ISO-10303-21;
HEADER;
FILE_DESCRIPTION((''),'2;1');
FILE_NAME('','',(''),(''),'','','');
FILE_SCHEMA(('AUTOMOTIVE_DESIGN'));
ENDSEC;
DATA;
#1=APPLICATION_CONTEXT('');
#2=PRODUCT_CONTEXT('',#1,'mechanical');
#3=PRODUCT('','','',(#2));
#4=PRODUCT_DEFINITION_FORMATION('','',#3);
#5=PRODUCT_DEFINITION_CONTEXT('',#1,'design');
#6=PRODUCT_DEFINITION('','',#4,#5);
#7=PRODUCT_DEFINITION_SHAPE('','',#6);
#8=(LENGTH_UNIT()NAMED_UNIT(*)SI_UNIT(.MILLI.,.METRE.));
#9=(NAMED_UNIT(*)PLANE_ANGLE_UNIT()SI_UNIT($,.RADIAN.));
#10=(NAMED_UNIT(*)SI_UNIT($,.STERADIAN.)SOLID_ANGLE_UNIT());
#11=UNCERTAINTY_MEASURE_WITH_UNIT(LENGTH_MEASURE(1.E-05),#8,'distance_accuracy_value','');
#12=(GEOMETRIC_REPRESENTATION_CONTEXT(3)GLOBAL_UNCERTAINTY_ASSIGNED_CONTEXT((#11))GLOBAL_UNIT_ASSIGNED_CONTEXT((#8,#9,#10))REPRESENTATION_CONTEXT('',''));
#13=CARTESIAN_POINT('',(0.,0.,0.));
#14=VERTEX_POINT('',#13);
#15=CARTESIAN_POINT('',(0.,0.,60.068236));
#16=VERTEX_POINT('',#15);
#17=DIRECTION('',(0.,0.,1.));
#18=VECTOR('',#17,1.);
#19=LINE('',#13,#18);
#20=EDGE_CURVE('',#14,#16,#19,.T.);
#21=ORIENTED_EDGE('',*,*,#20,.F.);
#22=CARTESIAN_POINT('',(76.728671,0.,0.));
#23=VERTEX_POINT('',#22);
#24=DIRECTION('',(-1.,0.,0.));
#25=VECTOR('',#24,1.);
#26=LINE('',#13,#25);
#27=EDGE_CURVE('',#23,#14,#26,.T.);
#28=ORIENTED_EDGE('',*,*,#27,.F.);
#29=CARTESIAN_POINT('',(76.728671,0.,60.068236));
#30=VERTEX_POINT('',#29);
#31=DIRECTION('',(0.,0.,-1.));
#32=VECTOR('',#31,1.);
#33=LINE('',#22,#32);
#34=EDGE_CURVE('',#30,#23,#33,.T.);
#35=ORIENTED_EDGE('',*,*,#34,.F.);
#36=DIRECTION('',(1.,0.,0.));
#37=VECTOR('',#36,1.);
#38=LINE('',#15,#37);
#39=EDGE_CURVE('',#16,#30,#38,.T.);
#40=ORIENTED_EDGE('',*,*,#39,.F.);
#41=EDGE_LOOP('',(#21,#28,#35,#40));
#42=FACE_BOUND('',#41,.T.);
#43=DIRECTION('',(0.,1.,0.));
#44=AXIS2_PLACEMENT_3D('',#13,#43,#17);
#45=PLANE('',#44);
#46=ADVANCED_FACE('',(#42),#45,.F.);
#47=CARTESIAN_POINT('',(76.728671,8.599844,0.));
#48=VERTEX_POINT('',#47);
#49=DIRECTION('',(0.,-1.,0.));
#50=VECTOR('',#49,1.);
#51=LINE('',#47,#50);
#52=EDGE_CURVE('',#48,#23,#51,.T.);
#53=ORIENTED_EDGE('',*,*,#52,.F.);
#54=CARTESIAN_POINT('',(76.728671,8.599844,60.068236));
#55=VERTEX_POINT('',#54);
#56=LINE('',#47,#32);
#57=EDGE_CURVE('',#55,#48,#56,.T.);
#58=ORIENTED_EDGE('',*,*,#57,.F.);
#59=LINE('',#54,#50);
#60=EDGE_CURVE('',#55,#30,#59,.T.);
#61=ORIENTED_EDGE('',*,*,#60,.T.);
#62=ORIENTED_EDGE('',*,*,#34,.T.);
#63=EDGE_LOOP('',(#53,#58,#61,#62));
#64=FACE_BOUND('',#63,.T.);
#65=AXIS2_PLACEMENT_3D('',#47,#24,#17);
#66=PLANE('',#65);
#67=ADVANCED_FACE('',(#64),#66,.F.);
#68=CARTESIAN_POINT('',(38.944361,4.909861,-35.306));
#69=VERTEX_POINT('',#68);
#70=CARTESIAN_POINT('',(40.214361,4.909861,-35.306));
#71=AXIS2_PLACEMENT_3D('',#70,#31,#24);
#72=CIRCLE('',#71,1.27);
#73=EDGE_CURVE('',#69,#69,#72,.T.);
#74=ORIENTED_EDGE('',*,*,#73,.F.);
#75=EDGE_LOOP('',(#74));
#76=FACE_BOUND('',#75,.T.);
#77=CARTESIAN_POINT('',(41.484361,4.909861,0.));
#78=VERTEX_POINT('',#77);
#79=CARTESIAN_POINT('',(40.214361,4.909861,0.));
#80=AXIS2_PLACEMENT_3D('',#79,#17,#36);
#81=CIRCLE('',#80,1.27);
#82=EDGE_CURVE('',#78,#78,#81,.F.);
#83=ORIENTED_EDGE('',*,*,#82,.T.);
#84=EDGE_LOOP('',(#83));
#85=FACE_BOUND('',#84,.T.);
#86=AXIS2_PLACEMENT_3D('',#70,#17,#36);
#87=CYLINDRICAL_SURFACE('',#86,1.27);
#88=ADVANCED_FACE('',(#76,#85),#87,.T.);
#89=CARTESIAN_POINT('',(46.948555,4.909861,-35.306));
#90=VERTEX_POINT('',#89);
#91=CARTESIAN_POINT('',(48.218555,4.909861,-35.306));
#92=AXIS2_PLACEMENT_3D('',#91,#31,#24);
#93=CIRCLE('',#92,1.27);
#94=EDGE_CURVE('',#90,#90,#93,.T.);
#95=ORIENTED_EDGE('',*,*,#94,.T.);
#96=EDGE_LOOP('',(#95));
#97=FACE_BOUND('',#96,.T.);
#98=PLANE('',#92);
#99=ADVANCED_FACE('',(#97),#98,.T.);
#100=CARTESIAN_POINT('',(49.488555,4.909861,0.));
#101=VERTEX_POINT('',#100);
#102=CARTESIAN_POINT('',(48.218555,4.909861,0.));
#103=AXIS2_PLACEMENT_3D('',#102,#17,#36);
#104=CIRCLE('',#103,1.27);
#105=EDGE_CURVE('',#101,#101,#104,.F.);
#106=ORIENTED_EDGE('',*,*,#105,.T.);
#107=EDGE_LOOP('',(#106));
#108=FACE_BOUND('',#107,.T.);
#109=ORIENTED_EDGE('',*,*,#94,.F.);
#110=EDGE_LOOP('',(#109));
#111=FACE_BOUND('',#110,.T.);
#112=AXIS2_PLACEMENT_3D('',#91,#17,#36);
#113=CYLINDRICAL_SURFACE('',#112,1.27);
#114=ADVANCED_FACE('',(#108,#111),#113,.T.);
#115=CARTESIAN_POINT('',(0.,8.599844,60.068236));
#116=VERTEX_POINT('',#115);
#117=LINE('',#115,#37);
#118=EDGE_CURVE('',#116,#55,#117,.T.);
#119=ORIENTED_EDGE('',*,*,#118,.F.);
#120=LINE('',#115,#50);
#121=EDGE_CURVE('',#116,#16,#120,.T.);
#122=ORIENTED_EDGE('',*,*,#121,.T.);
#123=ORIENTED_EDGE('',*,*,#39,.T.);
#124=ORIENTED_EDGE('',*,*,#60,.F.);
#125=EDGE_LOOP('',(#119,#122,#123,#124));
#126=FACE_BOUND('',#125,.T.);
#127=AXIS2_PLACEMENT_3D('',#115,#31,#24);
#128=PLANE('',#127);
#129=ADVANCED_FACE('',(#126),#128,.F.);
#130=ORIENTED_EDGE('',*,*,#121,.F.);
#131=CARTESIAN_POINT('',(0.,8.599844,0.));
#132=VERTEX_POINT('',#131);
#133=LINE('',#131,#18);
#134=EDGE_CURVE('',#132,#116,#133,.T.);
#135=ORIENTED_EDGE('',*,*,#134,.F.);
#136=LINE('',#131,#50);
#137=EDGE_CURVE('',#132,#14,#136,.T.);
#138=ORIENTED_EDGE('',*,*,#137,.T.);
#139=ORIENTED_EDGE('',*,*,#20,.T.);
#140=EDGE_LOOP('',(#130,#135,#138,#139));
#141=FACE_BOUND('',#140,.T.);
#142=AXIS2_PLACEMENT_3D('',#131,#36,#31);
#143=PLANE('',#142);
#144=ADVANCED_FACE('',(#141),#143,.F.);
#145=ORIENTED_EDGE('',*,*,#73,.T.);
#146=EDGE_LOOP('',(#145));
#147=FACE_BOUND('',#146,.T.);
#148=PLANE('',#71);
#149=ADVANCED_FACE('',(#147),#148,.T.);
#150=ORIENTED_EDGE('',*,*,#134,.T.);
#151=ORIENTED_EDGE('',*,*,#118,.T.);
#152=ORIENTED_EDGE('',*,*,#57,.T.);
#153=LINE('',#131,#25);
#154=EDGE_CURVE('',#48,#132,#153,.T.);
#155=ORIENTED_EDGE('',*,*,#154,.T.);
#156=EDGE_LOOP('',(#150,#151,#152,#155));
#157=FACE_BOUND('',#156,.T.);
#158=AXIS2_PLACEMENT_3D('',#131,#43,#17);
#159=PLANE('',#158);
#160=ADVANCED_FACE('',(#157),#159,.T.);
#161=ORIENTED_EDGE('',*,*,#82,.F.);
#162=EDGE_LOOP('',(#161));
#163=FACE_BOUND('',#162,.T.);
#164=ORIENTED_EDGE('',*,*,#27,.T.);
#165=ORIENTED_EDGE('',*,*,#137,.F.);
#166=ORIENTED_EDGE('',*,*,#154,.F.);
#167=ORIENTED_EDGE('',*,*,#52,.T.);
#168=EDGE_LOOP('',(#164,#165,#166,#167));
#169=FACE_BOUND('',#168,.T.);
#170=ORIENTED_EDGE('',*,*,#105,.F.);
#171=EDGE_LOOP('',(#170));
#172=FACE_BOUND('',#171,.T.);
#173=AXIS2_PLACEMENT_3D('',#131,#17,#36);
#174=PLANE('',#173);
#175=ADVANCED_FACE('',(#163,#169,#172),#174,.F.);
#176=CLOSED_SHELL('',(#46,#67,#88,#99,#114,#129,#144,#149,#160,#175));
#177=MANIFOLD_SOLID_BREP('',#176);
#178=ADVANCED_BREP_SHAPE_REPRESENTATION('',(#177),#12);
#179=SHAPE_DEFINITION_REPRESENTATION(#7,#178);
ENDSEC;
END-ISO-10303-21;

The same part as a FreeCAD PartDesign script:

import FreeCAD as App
import Part
import Sketcher
Q = App.Units.Quantity


def add_polygon(sketch, points):
    """Adds a closed chain of lines whose ends are joined by coincident constraints."""
    first, n = sketch.GeometryCount, len(points)
    for a, b in zip(points, points[1:] + points[:1]):
        sketch.addGeometry(Part.LineSegment(App.Vector(*a, 0), App.Vector(*b, 0)), False)
    for i in range(n):
        sketch.addConstraint(Sketcher.Constraint("Coincident", first + i, 2, first + (i + 1) % n, 1))

doc = App.newDocument("Part")
body = doc.addObject("PartDesign::Body", "Body")

sketch1 = body.newObject("Sketcher::SketchObject", "Sketch")
sketch1.AttachmentSupport = (doc.getObject("XZ_Plane"), [""])
sketch1.MapMode = "FlatFace"
add_polygon(sketch1, [(0, 0), (0, 60.068236), (76.728671, 60.068236), (76.728671, 0)])
sketch1.addConstraint([
    Sketcher.Constraint("Vertical", 0),
    Sketcher.Constraint("Horizontal", 1),
    Sketcher.Constraint("Vertical", 2),
    Sketcher.Constraint("Horizontal", 3),
    Sketcher.Constraint("Coincident", 3, 2, -1, 1),
    Sketcher.Constraint("DistanceX", 1, 1, 1, 2, Q("76.728671 mm")),
    Sketcher.Constraint("DistanceY", 0, 1, 0, 2, Q("60.068236 mm")),
])
pad1 = body.newObject("PartDesign::Pad", "Pad")
pad1.Profile = sketch1
pad1.Length = 8.599844
pad1.Reversed = True

sketch2 = body.newObject("Sketcher::SketchObject", "Sketch001")
sketch2.AttachmentSupport = (doc.getObject("XY_Plane"), [""])
sketch2.MapMode = "FlatFace"
sketch2.addGeometry([
    Part.Circle(App.Vector(48.218555, 4.909861, 0), App.Vector(0, 0, 1), 1.27),
    Part.Circle(App.Vector(40.214361, 4.909861, 0), App.Vector(0, 0, 1), 1.27),
], False)
sketch2.addConstraint([
    Sketcher.Constraint("Equal", 0, 1),
    Sketcher.Constraint("Horizontal", 0, 3, 1, 3),
    Sketcher.Constraint("Diameter", 0, Q("0.1 in")),
    Sketcher.Constraint("DistanceY", -1, 1, 0, 3, Q("4.909861 mm")),
    Sketcher.Constraint("DistanceX", -1, 1, 1, 3, Q("40.214361 mm")),
    Sketcher.Constraint("DistanceX", -1, 1, 0, 3, Q("48.218555 mm")),
])
pad2 = body.newObject("PartDesign::Pad", "Pad001")
pad2.Profile = sketch2
pad2.Length = Q("1.39 in")
pad2.Reversed = True

doc.recompute()
